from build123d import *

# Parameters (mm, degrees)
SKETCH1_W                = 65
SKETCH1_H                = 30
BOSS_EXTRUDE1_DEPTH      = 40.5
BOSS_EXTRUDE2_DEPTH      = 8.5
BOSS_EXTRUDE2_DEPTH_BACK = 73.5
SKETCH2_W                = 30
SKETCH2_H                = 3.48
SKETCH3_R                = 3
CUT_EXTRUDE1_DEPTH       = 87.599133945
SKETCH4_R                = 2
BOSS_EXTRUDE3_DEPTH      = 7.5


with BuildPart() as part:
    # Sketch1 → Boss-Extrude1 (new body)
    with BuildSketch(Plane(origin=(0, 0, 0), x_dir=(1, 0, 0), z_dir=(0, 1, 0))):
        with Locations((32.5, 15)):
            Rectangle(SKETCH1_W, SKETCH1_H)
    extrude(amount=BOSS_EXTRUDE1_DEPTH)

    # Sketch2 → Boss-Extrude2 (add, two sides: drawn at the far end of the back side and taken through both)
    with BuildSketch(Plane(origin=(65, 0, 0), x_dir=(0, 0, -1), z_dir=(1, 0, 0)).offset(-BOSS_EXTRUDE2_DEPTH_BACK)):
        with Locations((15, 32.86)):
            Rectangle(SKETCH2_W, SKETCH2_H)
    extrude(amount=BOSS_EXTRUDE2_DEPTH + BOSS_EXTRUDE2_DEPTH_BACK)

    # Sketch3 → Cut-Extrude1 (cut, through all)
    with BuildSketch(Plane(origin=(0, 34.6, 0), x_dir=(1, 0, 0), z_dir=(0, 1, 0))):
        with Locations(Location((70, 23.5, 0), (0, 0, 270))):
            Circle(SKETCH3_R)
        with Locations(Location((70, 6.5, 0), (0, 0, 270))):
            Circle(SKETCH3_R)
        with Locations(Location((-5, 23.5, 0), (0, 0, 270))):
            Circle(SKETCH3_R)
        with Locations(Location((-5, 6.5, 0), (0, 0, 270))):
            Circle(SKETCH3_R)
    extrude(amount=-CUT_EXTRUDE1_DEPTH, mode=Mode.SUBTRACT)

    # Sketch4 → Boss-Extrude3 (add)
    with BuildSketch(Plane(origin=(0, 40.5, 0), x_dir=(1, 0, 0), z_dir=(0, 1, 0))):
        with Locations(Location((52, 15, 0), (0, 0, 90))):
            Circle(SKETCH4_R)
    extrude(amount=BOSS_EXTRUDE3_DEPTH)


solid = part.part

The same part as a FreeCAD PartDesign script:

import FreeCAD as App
import Part
import Sketcher


def add_polygon(sketch, points):
    """Adds a closed chain of lines whose ends are joined by coincident constraints."""
    first, n = sketch.GeometryCount, len(points)
    for a, b in zip(points, points[1:] + points[:1]):
        sketch.addGeometry(Part.LineSegment(App.Vector(*a, 0), App.Vector(*b, 0)), False)
    for i in range(n):
        sketch.addConstraint(Sketcher.Constraint("Coincident", first + i, 2, first + (i + 1) % n, 1))

doc = App.newDocument("Part")
body = doc.addObject("PartDesign::Body", "Body")

sketch1 = body.newObject("Sketcher::SketchObject", "Sketch")
sketch1.AttachmentSupport = (doc.getObject("XZ_Plane"), [""])
sketch1.MapMode = "FlatFace"
add_polygon(sketch1, [(0, -30), (0, 0), (65, 0), (65, -30)])
sketch1.addConstraint([
    Sketcher.Constraint("Vertical", 0),
    Sketcher.Constraint("Horizontal", 1),
    Sketcher.Constraint("Vertical", 2),
    Sketcher.Constraint("Horizontal", 3),
    Sketcher.Constraint("Coincident", 0, 2, -1, 1),
    Sketcher.Constraint("DistanceX", 1, 1, 1, 2, 65.0),
    Sketcher.Constraint("DistanceY", 0, 1, 0, 2, 30.0),
])
pad1 = body.newObject("PartDesign::Pad", "Pad")
pad1.Profile = sketch1
pad1.Length = 40.5
pad1.Reversed = True

sketch2 = body.newObject("Sketcher::SketchObject", "Sketch001")
sketch2.AttachmentSupport = (doc.getObject("YZ_Plane"), [""])
sketch2.MapMode = "FlatFace"
sketch2.AttachmentOffset = App.Placement(App.Vector(0, 0, 65), App.Rotation())
add_polygon(sketch2, [(34.6, 0), (31.1, 0), (31.1, -30), (34.6, -30)])
sketch2.addConstraint([
    Sketcher.Constraint("Horizontal", 0),
    Sketcher.Constraint("Vertical", 1),
    Sketcher.Constraint("Horizontal", 2),
    Sketcher.Constraint("Vertical", 3),
    Sketcher.Constraint("PointOnObject", 0, 2, -1),
    Sketcher.Constraint("DistanceY", 1, 2, 1, 1, 30.0),
    Sketcher.Constraint("DistanceX", 0, 2, 0, 1, 3.48),
    Sketcher.Constraint("DistanceX", -1, 1, 2, 2, 34.6),
])
pad2 = body.newObject("PartDesign::Pad", "Pad001")
pad2.Profile = sketch2
pad2.Type = "TwoLengths"
pad2.Length = 8.5
pad2.Length2 = 73.5

sketch3 = body.newObject("Sketcher::SketchObject", "Sketch002")
sketch3.AttachmentSupport = (doc.getObject("XZ_Plane"), [""])
sketch3.MapMode = "FlatFace"
sketch3.AttachmentOffset = App.Placement(App.Vector(0, 0, -34.6), App.Rotation())
sketch3.addGeometry([
    Part.Circle(App.Vector(70, -23.5, 0), App.Vector(0, 0, 1), 3),
    Part.Circle(App.Vector(70, -6.5, 0), App.Vector(0, 0, 1), 3),
    Part.Circle(App.Vector(-5, -23.5, 0), App.Vector(0, 0, 1), 3),
    Part.Circle(App.Vector(-5, -6.5, 0), App.Vector(0, 0, 1), 3),
], False)
sketch3.addConstraint([
    Sketcher.Constraint("Equal", 0, 1),
    Sketcher.Constraint("Equal", 1, 2),
    Sketcher.Constraint("Equal", 2, 3),
    Sketcher.Constraint("Horizontal", 0, 3, 2, 3),
    Sketcher.Constraint("Horizontal", 1, 3, 3, 3),
    Sketcher.Constraint("Vertical", 0, 3, 1, 3),
    Sketcher.Constraint("Vertical", 2, 3, 3, 3),
    Sketcher.Constraint("Diameter", 0, 6.0),
    Sketcher.Constraint("DistanceX", -1, 1, 0, 3, 70.0),
    Sketcher.Constraint("DistanceX", 2, 3, -1, 1, 5.0),
    Sketcher.Constraint("DistanceY", 0, 3, 1, 3, 17.0),
    Sketcher.Constraint("DistanceY", 0, 3, -1, 1, 23.5),
])
pocket1 = body.newObject("PartDesign::Pocket", "Pocket")
pocket1.Profile = sketch3
pocket1.Type = "ThroughAll"
pocket1.Reversed = True

sketch4 = body.newObject("Sketcher::SketchObject", "Sketch003")
sketch4.AttachmentSupport = (doc.getObject("XZ_Plane"), [""])
sketch4.MapMode = "FlatFace"
sketch4.AttachmentOffset = App.Placement(App.Vector(0, 0, -40.5), App.Rotation())
sketch4.addGeometry(Part.Circle(App.Vector(52, -15, 0), App.Vector(0, 0, 1), 2), False)
sketch4.addConstraint([
    Sketcher.Constraint("Diameter", 0, 4.0),
    Sketcher.Constraint("DistanceX", -1, 1, 0, 3, 52.0),
    Sketcher.Constraint("DistanceY", 0, 3, -1, 1, 15.0),
])
pad3 = body.newObject("PartDesign::Pad", "Pad002")
pad3.Profile = sketch4
pad3.Length = 7.5
pad3.Reversed = True

doc.recompute()
